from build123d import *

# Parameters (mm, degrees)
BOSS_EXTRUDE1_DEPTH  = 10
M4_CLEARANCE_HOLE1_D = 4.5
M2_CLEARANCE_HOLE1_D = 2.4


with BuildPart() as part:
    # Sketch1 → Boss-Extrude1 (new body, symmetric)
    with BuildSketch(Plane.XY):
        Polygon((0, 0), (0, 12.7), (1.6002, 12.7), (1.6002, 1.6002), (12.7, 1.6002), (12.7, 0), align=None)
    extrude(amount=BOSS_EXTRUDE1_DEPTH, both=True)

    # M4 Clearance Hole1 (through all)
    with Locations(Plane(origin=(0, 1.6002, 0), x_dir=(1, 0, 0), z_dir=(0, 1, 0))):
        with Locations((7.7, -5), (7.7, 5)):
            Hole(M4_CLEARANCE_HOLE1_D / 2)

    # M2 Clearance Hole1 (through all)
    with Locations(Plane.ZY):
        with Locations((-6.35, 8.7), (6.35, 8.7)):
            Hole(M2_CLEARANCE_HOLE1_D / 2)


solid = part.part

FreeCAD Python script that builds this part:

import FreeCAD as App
import Part
import Sketcher

V = App.Vector
Q = App.Units.Quantity


def add_polygon(sketch, points):
    """Adds a closed chain of lines whose ends are joined by coincident constraints."""
    first, n = sketch.GeometryCount, len(points)
    for a, b in zip(points, points[1:] + points[:1]):
        sketch.addGeometry(Part.LineSegment(App.Vector(*a, 0), App.Vector(*b, 0)), False)
    for i in range(n):
        sketch.addConstraint(Sketcher.Constraint("Coincident", first + i, 2, first + (i + 1) % n, 1))

doc = App.newDocument("Part")
body = doc.addObject("PartDesign::Body", "Body")

# Sketch on XY plane
sketch1 = body.newObject("Sketcher::SketchObject", "Sketch")
sketch1.AttachmentSupport = (doc.getObject("XY_Plane"), [""])
sketch1.MapMode = "FlatFace"
add_polygon(sketch1, [(0, 12.7), (0, 0), (12.7, 0), (12.7, 1.6002), (1.6002, 1.6002), (1.6002, 12.7)])  # lines 0-5
sketch1.addConstraint(Sketcher.Constraint("Vertical", 0))
sketch1.addConstraint(Sketcher.Constraint("Horizontal", 1))
sketch1.addConstraint(Sketcher.Constraint("Vertical", 2))
sketch1.addConstraint(Sketcher.Constraint("Horizontal", 3))
sketch1.addConstraint(Sketcher.Constraint("Vertical", 4))
sketch1.addConstraint(Sketcher.Constraint("Horizontal", 5))
sketch1.addConstraint(Sketcher.Constraint("Coincident", 0, 2, -1, 1))
sketch1.addConstraint(Sketcher.Constraint("Equal", 1, 0))
sketch1.addConstraint(Sketcher.Constraint("Equal", 5, 2))
sketch1.addConstraint(Sketcher.Constraint("DistanceX", 1, 1, 1, 2, Q("12.7 mm")))
sketch1.addConstraint(Sketcher.Constraint("DistanceX", 3, 2, 3, 1, Q("11.0998 mm")))
pad1 = body.newObject("PartDesign::Pad", "Pad")
pad1.Profile = sketch1
pad1.Length = 20
pad1.Midplane = True

# Sketch on XZ plane
sketch2 = body.newObject("Sketcher::SketchObject", "Sketch001")
sketch2.AttachmentSupport = (doc.getObject("XZ_Plane"), [""])
sketch2.MapMode = "FlatFace"
sketch2.AttachmentOffset = App.Placement(V(0, 0, -1.6002), App.Rotation())
sketch2.addGeometry(Part.Circle(V(7.7, 5, 0), V(0, 0, 1), 2.25), False)
sketch2.addGeometry(Part.Circle(V(7.7, -5, 0), V(0, 0, 1), 2.25), False)
sketch2.addConstraint(Sketcher.Constraint("Equal", 0, 1))
sketch2.addConstraint(Sketcher.Constraint("Symmetric", 0, 3, 1, 3, -1))
sketch2.addConstraint(Sketcher.Constraint("Diameter", 0, Q("4.5 mm")))
sketch2.addConstraint(Sketcher.Constraint("DistanceY", -1, 1, 0, 3, Q("5 mm")))
sketch2.addConstraint(Sketcher.Constraint("DistanceX", -1, 1, 0, 3, Q("7.7 mm")))
doc.recompute()
hole = body.newObject("PartDesign::Hole", "Hole")
hole.Profile = sketch2
hole.ThreadType = "None"
hole.Diameter = 4.5
hole.DepthType = "ThroughAll"
hole.Reversed = True

# Sketch on YZ plane
sketch3 = body.newObject("Sketcher::SketchObject", "Sketch002")
sketch3.AttachmentSupport = (doc.getObject("YZ_Plane"), [""])
sketch3.MapMode = "FlatFace"
sketch3.addGeometry(Part.Circle(V(8.7, -6.35, 0), V(0, 0, 1), 1.2), False)
sketch3.addGeometry(Part.Circle(V(8.7, 6.35, 0), V(0, 0, 1), 1.2), False)
sketch3.addConstraint(Sketcher.Constraint("Equal", 0, 1))
sketch3.addConstraint(Sketcher.Constraint("Symmetric", 0, 3, 1, 3, -1))
sketch3.addConstraint(Sketcher.Constraint("Diameter", 0, Q("2.4 mm")))
sketch3.addConstraint(Sketcher.Constraint("DistanceX", -1, 1, 0, 3, Q("8.7 mm")))
sketch3.addConstraint(Sketcher.Constraint("DistanceY", 0, 3, 1, 3, Q("12.7 mm")))
doc.recompute()
hole2 = body.newObject("PartDesign::Hole", "Hole001")
hole2.Profile = sketch3
hole2.ThreadType = "None"
hole2.Diameter = 2.4
hole2.DepthType = "ThroughAll"
hole2.Reversed = True

doc.recompute()
